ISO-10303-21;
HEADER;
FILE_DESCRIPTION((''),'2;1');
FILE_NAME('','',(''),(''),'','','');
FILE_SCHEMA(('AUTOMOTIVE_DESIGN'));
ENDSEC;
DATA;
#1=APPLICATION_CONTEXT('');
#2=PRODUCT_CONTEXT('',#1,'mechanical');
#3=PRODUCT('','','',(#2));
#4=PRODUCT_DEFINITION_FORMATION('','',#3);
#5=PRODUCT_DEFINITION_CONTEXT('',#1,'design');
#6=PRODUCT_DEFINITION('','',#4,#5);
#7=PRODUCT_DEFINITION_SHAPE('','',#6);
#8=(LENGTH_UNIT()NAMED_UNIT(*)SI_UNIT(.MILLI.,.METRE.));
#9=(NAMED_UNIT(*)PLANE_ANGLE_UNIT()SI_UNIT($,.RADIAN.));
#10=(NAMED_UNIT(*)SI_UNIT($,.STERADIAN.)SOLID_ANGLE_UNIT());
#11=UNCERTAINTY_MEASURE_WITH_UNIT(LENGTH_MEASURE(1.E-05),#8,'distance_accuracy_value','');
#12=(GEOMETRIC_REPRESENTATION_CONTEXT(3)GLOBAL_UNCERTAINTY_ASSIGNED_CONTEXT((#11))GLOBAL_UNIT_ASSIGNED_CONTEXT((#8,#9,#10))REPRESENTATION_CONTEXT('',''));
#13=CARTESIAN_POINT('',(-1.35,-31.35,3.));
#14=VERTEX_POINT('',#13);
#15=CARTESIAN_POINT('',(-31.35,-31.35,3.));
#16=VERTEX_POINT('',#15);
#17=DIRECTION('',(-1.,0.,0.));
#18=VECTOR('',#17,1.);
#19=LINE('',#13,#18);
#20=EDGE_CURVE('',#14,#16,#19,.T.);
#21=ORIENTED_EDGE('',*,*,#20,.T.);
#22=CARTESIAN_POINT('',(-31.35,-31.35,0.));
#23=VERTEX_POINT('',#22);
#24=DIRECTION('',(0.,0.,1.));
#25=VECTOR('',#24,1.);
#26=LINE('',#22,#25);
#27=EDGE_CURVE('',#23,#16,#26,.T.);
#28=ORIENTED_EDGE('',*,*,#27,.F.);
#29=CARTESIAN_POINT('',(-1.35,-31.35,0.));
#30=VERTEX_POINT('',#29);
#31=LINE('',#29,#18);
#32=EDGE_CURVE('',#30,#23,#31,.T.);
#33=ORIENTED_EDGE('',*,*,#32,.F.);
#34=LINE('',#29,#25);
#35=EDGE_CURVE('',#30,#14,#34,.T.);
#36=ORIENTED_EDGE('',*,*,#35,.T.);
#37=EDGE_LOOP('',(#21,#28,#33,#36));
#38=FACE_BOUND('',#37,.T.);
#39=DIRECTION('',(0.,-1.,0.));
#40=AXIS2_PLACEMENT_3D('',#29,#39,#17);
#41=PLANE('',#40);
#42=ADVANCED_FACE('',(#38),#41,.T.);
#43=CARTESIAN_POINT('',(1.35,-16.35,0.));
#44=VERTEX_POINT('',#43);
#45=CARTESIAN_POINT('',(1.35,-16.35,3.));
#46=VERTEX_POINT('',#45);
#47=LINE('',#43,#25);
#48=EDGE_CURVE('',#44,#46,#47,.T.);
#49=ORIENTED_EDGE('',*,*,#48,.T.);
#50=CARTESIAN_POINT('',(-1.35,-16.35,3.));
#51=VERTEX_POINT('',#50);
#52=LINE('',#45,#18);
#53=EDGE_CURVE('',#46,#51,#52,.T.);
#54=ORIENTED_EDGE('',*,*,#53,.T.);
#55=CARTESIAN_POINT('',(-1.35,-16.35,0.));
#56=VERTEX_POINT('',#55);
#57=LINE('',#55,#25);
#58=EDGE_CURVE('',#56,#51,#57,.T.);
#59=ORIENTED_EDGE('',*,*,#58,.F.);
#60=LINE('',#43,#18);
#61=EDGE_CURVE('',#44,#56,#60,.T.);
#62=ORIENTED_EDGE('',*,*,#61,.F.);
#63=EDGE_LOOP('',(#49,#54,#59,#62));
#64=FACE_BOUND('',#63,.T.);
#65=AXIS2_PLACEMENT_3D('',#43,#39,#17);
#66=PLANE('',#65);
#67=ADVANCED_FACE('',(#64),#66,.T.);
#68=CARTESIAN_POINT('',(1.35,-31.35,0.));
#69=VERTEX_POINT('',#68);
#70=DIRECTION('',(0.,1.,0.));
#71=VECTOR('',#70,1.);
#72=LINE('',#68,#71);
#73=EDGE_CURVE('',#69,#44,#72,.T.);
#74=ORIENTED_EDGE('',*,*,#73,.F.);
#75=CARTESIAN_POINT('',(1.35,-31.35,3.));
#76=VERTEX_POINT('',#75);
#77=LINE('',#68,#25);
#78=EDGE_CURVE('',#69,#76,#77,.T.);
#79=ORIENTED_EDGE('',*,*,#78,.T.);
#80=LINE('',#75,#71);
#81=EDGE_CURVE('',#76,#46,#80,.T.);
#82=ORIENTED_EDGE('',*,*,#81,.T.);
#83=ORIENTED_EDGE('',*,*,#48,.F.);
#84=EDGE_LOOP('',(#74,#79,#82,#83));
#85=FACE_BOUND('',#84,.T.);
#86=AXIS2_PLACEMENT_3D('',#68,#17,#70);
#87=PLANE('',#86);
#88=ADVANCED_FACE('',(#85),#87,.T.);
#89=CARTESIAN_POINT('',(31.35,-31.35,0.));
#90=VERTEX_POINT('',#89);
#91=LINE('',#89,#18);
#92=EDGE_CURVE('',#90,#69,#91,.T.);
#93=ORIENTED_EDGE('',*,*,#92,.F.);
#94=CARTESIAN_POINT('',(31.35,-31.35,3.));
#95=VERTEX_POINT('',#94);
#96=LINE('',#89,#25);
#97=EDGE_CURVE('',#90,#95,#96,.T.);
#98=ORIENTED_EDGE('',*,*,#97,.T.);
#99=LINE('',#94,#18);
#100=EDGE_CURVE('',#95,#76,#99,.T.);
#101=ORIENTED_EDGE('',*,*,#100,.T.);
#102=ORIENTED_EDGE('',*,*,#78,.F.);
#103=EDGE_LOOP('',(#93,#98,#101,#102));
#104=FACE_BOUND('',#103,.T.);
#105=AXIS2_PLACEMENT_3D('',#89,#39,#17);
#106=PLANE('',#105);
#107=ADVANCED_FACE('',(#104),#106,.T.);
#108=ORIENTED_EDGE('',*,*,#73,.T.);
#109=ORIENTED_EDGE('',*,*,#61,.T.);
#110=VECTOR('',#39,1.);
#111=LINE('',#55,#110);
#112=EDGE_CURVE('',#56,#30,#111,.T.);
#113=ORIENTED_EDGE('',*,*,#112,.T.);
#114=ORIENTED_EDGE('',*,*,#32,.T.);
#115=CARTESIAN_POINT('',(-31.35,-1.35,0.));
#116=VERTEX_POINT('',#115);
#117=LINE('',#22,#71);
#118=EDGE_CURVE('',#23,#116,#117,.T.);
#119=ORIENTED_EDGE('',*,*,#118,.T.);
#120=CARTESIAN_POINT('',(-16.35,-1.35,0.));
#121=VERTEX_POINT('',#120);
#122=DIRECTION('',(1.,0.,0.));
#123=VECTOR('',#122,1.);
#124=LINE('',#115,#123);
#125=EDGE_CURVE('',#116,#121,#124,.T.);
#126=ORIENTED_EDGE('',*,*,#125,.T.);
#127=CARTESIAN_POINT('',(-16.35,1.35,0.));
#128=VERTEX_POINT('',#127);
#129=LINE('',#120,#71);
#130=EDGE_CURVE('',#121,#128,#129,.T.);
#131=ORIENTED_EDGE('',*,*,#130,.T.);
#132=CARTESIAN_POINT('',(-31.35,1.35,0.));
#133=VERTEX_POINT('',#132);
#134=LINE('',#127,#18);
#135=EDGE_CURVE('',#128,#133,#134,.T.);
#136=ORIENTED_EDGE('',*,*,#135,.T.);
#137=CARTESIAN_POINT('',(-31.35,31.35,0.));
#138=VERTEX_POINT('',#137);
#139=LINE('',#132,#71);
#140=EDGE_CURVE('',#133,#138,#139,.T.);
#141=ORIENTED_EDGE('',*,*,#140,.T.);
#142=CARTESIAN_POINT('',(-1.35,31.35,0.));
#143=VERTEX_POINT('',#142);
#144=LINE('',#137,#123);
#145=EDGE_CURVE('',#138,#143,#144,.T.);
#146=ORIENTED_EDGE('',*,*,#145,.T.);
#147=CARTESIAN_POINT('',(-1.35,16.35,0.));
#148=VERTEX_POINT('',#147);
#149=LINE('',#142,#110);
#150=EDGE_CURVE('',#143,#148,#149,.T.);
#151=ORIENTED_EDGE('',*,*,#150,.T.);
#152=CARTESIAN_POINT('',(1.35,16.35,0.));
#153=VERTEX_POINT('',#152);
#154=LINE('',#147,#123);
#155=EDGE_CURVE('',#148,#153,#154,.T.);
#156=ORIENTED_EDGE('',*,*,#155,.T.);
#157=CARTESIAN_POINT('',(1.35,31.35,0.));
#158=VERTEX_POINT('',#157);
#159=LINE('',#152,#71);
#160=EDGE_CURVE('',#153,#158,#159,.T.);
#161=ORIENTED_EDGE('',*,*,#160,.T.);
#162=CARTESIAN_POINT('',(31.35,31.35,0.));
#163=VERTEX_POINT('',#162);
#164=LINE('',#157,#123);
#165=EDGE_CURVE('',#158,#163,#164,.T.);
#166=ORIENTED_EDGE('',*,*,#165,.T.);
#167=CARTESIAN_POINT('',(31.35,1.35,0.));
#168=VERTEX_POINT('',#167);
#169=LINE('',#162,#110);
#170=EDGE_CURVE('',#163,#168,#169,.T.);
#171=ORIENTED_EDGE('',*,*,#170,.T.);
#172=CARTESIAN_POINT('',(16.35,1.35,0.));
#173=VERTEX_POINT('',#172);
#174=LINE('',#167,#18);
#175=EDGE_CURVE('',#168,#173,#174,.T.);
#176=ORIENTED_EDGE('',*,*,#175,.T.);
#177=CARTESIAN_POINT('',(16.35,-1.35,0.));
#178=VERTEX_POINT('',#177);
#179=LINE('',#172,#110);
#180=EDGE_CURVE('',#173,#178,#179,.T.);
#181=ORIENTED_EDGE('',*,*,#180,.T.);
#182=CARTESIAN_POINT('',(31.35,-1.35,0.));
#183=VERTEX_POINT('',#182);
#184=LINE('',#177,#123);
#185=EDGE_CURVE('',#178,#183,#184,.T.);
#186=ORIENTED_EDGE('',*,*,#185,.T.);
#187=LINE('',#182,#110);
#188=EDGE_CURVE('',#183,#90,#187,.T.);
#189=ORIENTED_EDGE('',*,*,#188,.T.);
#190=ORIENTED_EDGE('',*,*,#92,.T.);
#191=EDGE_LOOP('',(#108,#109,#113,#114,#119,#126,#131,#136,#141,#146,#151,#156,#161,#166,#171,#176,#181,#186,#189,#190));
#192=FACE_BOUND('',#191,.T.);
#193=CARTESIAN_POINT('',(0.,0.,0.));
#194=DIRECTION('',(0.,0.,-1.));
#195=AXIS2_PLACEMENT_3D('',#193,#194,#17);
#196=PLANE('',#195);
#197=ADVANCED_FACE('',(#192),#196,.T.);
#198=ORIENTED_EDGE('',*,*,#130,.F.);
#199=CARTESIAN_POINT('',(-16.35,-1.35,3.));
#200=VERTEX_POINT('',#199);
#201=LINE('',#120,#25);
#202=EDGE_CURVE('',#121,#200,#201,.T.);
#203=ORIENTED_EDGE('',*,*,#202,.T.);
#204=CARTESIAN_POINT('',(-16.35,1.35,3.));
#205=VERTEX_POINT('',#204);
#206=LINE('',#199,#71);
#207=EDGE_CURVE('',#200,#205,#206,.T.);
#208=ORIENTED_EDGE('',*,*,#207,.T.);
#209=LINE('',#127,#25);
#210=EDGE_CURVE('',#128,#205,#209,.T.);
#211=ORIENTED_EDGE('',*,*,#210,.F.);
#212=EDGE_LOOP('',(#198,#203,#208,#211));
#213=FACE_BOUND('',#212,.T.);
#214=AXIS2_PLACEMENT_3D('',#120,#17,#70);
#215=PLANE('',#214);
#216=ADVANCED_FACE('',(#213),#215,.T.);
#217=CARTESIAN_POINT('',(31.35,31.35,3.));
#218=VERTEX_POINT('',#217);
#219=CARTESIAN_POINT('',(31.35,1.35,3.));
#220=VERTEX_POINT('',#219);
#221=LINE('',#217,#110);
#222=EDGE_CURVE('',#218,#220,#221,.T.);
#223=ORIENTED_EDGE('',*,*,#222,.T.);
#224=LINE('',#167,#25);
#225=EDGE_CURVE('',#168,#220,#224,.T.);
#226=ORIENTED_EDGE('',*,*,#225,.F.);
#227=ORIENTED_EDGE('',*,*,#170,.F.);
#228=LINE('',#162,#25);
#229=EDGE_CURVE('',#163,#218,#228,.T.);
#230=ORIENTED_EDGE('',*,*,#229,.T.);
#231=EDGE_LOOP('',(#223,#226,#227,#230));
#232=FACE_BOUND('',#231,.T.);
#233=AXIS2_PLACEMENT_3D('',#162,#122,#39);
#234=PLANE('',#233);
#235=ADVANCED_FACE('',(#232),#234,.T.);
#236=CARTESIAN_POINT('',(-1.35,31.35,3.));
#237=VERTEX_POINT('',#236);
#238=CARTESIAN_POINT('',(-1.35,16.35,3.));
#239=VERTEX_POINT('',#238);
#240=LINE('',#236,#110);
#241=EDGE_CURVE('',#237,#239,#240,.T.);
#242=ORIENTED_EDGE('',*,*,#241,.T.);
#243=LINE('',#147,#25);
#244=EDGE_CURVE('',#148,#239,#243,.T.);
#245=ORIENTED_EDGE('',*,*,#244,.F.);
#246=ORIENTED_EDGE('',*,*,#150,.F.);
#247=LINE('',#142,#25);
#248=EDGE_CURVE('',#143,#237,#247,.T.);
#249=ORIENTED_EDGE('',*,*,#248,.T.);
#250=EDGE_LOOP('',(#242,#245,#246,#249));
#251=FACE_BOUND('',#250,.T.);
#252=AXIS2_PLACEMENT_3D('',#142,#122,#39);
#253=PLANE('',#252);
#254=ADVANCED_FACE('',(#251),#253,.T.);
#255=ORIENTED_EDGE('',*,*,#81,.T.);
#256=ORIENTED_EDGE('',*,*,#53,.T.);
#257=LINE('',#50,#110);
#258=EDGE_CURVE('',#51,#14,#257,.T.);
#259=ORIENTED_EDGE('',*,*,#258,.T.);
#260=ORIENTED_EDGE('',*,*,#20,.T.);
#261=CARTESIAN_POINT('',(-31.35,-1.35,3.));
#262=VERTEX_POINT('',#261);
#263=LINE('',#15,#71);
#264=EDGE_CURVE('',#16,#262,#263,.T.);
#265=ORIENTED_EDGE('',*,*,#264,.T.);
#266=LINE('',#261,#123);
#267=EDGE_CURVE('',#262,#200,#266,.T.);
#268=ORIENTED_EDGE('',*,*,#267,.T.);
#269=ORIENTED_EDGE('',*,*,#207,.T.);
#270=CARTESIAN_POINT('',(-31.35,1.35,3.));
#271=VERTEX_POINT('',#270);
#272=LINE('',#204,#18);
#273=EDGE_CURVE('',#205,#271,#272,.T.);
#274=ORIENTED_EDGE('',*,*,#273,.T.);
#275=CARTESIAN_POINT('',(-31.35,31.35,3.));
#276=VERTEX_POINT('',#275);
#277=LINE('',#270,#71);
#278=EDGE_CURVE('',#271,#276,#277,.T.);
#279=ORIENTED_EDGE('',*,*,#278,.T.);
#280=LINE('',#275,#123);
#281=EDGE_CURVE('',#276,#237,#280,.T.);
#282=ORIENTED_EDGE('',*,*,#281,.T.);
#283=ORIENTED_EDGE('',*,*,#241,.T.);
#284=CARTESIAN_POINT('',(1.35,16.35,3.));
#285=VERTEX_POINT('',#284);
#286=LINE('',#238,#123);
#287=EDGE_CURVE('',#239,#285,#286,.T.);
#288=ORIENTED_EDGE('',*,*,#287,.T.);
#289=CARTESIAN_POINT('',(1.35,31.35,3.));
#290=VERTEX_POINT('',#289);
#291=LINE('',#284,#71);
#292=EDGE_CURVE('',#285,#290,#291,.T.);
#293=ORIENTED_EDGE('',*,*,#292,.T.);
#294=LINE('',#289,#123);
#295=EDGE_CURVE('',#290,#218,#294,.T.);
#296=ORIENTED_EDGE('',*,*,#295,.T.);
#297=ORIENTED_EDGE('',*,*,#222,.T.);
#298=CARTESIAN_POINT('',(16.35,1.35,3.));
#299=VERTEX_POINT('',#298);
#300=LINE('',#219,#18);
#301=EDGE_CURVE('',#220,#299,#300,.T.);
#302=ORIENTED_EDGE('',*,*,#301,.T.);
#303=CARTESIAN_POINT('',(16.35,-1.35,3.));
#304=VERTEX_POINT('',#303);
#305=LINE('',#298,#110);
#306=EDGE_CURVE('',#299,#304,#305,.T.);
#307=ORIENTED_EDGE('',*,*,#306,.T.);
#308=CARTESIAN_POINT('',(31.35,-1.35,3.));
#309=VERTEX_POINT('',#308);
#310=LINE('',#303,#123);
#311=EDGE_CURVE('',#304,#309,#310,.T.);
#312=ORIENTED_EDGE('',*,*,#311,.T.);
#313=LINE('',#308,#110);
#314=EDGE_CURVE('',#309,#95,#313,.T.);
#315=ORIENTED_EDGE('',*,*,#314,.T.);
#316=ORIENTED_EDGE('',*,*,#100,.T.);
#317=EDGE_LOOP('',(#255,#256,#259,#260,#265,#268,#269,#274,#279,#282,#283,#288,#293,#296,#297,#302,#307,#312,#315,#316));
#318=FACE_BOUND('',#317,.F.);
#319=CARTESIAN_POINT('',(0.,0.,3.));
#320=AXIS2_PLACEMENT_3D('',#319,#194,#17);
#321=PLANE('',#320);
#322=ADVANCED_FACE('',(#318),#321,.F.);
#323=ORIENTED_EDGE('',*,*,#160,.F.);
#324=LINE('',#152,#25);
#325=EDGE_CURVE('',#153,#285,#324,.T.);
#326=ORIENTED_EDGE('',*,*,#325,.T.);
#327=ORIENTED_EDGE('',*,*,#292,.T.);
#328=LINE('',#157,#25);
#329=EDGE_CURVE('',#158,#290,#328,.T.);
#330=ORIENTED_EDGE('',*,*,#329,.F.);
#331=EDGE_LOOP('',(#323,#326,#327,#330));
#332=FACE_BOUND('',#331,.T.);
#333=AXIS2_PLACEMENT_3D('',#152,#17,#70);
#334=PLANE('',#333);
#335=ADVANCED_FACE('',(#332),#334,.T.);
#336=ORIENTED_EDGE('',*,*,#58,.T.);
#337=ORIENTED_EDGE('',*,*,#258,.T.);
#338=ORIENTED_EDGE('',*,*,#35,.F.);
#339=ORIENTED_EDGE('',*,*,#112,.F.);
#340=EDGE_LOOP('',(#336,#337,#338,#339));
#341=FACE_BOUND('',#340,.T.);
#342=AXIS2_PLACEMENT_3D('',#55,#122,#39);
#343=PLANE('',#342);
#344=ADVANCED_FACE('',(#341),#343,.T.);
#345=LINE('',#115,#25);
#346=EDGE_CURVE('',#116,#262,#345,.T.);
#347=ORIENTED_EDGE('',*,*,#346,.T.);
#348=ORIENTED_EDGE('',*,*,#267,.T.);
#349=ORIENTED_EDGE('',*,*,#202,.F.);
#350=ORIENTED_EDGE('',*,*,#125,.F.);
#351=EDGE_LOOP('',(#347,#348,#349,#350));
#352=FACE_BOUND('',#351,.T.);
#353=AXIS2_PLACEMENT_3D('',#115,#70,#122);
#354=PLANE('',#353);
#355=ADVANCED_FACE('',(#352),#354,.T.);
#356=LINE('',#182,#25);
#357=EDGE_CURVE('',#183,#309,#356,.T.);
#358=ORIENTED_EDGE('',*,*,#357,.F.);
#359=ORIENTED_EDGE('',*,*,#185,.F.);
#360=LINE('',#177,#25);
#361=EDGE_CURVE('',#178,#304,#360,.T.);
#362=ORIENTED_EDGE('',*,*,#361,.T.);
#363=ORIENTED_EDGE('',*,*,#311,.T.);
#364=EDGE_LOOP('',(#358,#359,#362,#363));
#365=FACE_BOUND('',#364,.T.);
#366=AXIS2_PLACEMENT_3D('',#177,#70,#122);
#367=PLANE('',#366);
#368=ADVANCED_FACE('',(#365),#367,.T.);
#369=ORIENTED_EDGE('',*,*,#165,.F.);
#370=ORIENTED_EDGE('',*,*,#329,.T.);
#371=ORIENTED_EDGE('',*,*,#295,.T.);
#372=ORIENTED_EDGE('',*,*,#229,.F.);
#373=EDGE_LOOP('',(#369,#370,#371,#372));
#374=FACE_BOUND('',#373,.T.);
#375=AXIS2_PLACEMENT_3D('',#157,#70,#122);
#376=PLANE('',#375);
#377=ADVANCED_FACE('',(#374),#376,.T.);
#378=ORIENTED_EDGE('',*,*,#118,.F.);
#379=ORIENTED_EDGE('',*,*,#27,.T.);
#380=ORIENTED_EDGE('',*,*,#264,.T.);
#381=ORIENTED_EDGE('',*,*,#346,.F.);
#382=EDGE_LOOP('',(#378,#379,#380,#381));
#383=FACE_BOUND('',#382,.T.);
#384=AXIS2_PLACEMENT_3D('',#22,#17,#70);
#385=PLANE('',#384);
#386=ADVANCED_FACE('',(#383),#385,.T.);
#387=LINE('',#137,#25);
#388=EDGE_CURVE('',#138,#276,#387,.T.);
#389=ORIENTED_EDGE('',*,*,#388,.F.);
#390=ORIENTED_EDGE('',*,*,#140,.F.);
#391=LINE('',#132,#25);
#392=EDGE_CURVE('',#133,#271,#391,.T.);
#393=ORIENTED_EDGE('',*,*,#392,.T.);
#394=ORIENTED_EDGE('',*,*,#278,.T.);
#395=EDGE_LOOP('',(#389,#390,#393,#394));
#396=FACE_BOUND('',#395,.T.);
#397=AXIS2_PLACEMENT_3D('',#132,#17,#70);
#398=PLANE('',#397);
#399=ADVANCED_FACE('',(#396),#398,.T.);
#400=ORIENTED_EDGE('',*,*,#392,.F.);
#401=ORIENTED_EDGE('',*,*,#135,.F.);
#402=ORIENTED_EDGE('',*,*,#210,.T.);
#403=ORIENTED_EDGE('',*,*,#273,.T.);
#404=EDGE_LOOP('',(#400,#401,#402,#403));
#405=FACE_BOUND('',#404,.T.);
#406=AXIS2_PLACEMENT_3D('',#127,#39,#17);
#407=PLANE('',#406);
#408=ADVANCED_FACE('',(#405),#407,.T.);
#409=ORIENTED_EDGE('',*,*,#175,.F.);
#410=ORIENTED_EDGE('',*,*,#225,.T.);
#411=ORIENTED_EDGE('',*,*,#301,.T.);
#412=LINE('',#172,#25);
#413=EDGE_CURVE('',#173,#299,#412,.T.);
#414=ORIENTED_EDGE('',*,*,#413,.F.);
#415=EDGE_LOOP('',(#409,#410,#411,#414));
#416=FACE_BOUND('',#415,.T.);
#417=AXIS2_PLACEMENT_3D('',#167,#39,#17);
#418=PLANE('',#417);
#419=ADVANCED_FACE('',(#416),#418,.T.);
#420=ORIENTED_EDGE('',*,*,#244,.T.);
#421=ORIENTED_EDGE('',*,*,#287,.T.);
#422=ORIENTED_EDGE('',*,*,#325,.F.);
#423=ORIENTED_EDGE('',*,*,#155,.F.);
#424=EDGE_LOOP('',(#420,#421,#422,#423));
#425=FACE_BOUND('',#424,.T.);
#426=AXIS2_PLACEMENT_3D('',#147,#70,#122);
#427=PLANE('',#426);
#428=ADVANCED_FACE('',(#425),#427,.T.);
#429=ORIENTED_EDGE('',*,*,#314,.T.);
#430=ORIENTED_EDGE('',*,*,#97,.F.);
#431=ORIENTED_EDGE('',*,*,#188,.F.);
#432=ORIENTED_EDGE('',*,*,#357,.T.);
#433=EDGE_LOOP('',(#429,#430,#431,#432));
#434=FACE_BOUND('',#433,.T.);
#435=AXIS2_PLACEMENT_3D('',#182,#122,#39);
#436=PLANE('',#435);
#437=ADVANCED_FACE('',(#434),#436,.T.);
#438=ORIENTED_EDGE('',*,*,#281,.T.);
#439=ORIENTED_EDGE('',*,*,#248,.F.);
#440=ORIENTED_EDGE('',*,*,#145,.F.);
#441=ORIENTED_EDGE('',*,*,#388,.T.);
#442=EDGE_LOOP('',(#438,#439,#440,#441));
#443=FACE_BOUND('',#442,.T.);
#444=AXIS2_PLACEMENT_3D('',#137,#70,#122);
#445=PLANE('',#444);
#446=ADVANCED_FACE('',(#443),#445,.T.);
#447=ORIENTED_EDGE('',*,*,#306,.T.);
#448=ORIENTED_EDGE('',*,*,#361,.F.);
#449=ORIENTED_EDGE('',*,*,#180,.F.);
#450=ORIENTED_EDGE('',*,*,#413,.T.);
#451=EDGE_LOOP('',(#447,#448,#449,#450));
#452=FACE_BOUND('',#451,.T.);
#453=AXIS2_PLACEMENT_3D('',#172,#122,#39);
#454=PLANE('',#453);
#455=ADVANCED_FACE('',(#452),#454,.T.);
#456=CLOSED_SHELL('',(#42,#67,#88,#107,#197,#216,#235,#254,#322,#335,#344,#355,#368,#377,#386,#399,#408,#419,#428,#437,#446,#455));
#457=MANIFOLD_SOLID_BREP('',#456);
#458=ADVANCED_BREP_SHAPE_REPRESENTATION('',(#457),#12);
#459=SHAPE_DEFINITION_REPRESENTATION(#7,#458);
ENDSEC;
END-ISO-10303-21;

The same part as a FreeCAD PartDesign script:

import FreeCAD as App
import Part
import Sketcher

V = App.Vector
Q = App.Units.Quantity

doc = App.newDocument("Part")
body = doc.addObject("PartDesign::Body", "Body")

sketch1 = body.newObject("Sketcher::SketchObject", "Sketch")
sketch1.AttachmentSupport = (doc.getObject("XY_Plane"), [""])
sketch1.MapMode = "FlatFace"
sketch1.addGeometry([
    Part.LineSegment(V(31.4, 31.4, 0), V(1.4, 31.4, 0)),
    Part.LineSegment(V(1.4, 31.4, 0), V(1.4, 16.4, 0)),
    Part.LineSegment(V(1.4, 16.4, 0), V(-1.4, 16.4, 0)),
    Part.LineSegment(V(-1.4, 16.4, 0), V(-1.4, 31.4, 0)),
    Part.LineSegment(V(-1.4, 31.4, 0), V(-31.4, 31.4, 0)),
    Part.LineSegment(V(-31.4, 31.4, 0), V(-31.4, 1.4, 0)),
    Part.LineSegment(V(-31.4, 1.4, 0), V(-16.4, 1.4, 0)),
    Part.LineSegment(V(-16.4, 1.4, 0), V(-16.4, -1.4, 0)),
    Part.LineSegment(V(-16.4, -1.4, 0), V(-31.4, -1.4, 0)),
    Part.LineSegment(V(-31.4, -1.4, 0), V(-31.4, -31.4, 0)),
    Part.LineSegment(V(-31.4, -31.4, 0), V(-1.4, -31.4, 0)),
    Part.LineSegment(V(-1.4, -31.4, 0), V(-1.4, -16.4, 0)),
    Part.LineSegment(V(-1.4, -16.4, 0), V(1.4, -16.4, 0)),
    Part.LineSegment(V(1.4, -16.4, 0), V(1.4, -31.4, 0)),
    Part.LineSegment(V(1.4, -31.4, 0), V(31.4, -31.4, 0)),
    Part.LineSegment(V(31.4, -31.4, 0), V(31.4, -1.4, 0)),
    Part.LineSegment(V(31.4, -1.4, 0), V(16.4, -1.4, 0)),
    Part.LineSegment(V(16.4, -1.4, 0), V(16.4, 1.4, 0)),
    Part.LineSegment(V(16.4, 1.4, 0), V(31.4, 1.4, 0)),
    Part.LineSegment(V(31.4, 1.4, 0), V(31.4, 31.4, 0)),
], False)
sketch1.addConstraint([
    Sketcher.Constraint("Coincident", 0, 2, 1, 1),
    Sketcher.Constraint("Coincident", 1, 2, 2, 1),
    Sketcher.Constraint("Coincident", 2, 2, 3, 1),
    Sketcher.Constraint("Coincident", 3, 2, 4, 1),
    Sketcher.Constraint("Coincident", 4, 2, 5, 1),
    Sketcher.Constraint("Coincident", 5, 2, 6, 1),
    Sketcher.Constraint("Coincident", 6, 2, 7, 1),
    Sketcher.Constraint("Coincident", 7, 2, 8, 1),
    Sketcher.Constraint("Coincident", 8, 2, 9, 1),
    Sketcher.Constraint("Coincident", 9, 2, 10, 1),
    Sketcher.Constraint("Coincident", 10, 2, 11, 1),
    Sketcher.Constraint("Coincident", 11, 2, 12, 1),
    Sketcher.Constraint("Coincident", 12, 2, 13, 1),
    Sketcher.Constraint("Coincident", 13, 2, 14, 1),
    Sketcher.Constraint("Coincident", 14, 2, 15, 1),
    Sketcher.Constraint("Coincident", 15, 2, 16, 1),
    Sketcher.Constraint("Coincident", 16, 2, 17, 1),
    Sketcher.Constraint("Coincident", 17, 2, 18, 1),
    Sketcher.Constraint("Coincident", 18, 2, 19, 1),
    Sketcher.Constraint("Coincident", 19, 2, 0, 1),
    Sketcher.Constraint("Horizontal", 0),
    Sketcher.Constraint("Vertical", 1),
    Sketcher.Constraint("Horizontal", 2),
    Sketcher.Constraint("Vertical", 3),
    Sketcher.Constraint("Horizontal", 4),
    Sketcher.Constraint("Vertical", 5),
    Sketcher.Constraint("Horizontal", 6),
    Sketcher.Constraint("Vertical", 7),
    Sketcher.Constraint("Horizontal", 8),
    Sketcher.Constraint("Vertical", 9),
    Sketcher.Constraint("Horizontal", 10),
    Sketcher.Constraint("Vertical", 11),
    Sketcher.Constraint("Horizontal", 12),
    Sketcher.Constraint("Vertical", 13),
    Sketcher.Constraint("Horizontal", 14),
    Sketcher.Constraint("Vertical", 15),
    Sketcher.Constraint("Horizontal", 16),
    Sketcher.Constraint("Vertical", 17),
    Sketcher.Constraint("Horizontal", 18),
    Sketcher.Constraint("Vertical", 19),
    Sketcher.Constraint("Symmetric", 0, 2, 10, 2, -1, 1),
    Sketcher.Constraint("Symmetric", 2, 2, 12, 2, -1, 1),
    Sketcher.Constraint("Symmetric", 4, 2, 14, 2, -1, 1),
    Sketcher.Constraint("Symmetric", 6, 2, 16, 2, -1, 1),
    Sketcher.Constraint("Symmetric", 8, 2, 18, 2, -1, 1),
    Sketcher.Constraint("Symmetric", 0, 2, 3, 2, -2),
    Sketcher.Constraint("Symmetric", 8, 2, 15, 2, -2),
    Sketcher.Constraint("Equal", 18, 1),
    Sketcher.Constraint("Equal", 14, 5),
    Sketcher.Constraint("Equal", 12, 7),
    Sketcher.Constraint("DistanceX", 0, 2, 0, 1, Q("30 mm")),
    Sketcher.Constraint("DistanceX", 6, 1, 6, 2, Q("15 mm")),
    Sketcher.Constraint("DistanceX", 2, 2, 2, 1, Q("2.7 mm")),
])
pad1 = body.newObject("PartDesign::Pad", "Pad")
pad1.Profile = sketch1
pad1.Length = 3

doc.recompute()
